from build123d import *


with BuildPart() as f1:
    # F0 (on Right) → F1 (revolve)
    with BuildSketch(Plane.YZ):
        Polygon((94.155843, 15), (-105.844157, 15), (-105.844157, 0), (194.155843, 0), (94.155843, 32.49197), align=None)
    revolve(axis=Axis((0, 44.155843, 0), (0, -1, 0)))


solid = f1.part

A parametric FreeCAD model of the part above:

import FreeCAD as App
import Part
import Sketcher
Q = App.Units.Quantity

doc = App.newDocument("Part")
body = doc.addObject("PartDesign::Body", "Body")

# Sketch on YZ plane
sketch1 = body.newObject("Sketcher::SketchObject", "Sketch")
sketch1.AttachmentSupport = (doc.getObject("YZ_Plane"), [""])
sketch1.MapMode = "FlatFace"
sketch1.addGeometry([
    Part.LineSegment(App.Vector(94.155843, 15, 0), App.Vector(-105.844157, 15, 0)),  # 0
    Part.LineSegment(App.Vector(-105.844157, 15, 0), App.Vector(-105.844157, 0, 0)),  # 1
    Part.LineSegment(App.Vector(-105.844157, 0, 0), App.Vector(194.155843, 0, 0)),  # 2
    Part.LineSegment(App.Vector(194.155843, 0, 0), App.Vector(94.155843, 32.49197, 0)),  # 3
    Part.LineSegment(App.Vector(94.155843, 32.49197, 0), App.Vector(94.155843, 15, 0)),  # 4
], False)
sketch1.addConstraint([
    Sketcher.Constraint("Coincident", 0, 2, 1, 1),
    Sketcher.Constraint("Coincident", 1, 2, 2, 1),
    Sketcher.Constraint("Coincident", 2, 2, 3, 1),
    Sketcher.Constraint("Coincident", 3, 2, 4, 1),
    Sketcher.Constraint("Coincident", 4, 2, 0, 1),
    Sketcher.Constraint("Horizontal", 0),
    Sketcher.Constraint("Vertical", 1),
    Sketcher.Constraint("Horizontal", 2),
    Sketcher.Constraint("Vertical", 4),
    Sketcher.Constraint("PointOnObject", 1, 2, -1),
    Sketcher.Constraint("DistanceX", 0, 2, 0, 1, 200.0),
    Sketcher.Constraint("DistanceX", 2, 1, 2, 2, 300.0),
    Sketcher.Constraint("DistanceY", 1, 2, 1, 1, 15.0),
    Sketcher.Constraint("Angle", 3, Q("162 deg")),
    Sketcher.Constraint("DistanceX", 0, 2, -1, 1, 105.844157),
])
revolution = body.newObject("PartDesign::Revolution", "Revolution")
revolution.Profile = sketch1
revolution.ReferenceAxis = (sketch1, ["H_Axis"])
revolution.Angle = 360

doc.recompute()
